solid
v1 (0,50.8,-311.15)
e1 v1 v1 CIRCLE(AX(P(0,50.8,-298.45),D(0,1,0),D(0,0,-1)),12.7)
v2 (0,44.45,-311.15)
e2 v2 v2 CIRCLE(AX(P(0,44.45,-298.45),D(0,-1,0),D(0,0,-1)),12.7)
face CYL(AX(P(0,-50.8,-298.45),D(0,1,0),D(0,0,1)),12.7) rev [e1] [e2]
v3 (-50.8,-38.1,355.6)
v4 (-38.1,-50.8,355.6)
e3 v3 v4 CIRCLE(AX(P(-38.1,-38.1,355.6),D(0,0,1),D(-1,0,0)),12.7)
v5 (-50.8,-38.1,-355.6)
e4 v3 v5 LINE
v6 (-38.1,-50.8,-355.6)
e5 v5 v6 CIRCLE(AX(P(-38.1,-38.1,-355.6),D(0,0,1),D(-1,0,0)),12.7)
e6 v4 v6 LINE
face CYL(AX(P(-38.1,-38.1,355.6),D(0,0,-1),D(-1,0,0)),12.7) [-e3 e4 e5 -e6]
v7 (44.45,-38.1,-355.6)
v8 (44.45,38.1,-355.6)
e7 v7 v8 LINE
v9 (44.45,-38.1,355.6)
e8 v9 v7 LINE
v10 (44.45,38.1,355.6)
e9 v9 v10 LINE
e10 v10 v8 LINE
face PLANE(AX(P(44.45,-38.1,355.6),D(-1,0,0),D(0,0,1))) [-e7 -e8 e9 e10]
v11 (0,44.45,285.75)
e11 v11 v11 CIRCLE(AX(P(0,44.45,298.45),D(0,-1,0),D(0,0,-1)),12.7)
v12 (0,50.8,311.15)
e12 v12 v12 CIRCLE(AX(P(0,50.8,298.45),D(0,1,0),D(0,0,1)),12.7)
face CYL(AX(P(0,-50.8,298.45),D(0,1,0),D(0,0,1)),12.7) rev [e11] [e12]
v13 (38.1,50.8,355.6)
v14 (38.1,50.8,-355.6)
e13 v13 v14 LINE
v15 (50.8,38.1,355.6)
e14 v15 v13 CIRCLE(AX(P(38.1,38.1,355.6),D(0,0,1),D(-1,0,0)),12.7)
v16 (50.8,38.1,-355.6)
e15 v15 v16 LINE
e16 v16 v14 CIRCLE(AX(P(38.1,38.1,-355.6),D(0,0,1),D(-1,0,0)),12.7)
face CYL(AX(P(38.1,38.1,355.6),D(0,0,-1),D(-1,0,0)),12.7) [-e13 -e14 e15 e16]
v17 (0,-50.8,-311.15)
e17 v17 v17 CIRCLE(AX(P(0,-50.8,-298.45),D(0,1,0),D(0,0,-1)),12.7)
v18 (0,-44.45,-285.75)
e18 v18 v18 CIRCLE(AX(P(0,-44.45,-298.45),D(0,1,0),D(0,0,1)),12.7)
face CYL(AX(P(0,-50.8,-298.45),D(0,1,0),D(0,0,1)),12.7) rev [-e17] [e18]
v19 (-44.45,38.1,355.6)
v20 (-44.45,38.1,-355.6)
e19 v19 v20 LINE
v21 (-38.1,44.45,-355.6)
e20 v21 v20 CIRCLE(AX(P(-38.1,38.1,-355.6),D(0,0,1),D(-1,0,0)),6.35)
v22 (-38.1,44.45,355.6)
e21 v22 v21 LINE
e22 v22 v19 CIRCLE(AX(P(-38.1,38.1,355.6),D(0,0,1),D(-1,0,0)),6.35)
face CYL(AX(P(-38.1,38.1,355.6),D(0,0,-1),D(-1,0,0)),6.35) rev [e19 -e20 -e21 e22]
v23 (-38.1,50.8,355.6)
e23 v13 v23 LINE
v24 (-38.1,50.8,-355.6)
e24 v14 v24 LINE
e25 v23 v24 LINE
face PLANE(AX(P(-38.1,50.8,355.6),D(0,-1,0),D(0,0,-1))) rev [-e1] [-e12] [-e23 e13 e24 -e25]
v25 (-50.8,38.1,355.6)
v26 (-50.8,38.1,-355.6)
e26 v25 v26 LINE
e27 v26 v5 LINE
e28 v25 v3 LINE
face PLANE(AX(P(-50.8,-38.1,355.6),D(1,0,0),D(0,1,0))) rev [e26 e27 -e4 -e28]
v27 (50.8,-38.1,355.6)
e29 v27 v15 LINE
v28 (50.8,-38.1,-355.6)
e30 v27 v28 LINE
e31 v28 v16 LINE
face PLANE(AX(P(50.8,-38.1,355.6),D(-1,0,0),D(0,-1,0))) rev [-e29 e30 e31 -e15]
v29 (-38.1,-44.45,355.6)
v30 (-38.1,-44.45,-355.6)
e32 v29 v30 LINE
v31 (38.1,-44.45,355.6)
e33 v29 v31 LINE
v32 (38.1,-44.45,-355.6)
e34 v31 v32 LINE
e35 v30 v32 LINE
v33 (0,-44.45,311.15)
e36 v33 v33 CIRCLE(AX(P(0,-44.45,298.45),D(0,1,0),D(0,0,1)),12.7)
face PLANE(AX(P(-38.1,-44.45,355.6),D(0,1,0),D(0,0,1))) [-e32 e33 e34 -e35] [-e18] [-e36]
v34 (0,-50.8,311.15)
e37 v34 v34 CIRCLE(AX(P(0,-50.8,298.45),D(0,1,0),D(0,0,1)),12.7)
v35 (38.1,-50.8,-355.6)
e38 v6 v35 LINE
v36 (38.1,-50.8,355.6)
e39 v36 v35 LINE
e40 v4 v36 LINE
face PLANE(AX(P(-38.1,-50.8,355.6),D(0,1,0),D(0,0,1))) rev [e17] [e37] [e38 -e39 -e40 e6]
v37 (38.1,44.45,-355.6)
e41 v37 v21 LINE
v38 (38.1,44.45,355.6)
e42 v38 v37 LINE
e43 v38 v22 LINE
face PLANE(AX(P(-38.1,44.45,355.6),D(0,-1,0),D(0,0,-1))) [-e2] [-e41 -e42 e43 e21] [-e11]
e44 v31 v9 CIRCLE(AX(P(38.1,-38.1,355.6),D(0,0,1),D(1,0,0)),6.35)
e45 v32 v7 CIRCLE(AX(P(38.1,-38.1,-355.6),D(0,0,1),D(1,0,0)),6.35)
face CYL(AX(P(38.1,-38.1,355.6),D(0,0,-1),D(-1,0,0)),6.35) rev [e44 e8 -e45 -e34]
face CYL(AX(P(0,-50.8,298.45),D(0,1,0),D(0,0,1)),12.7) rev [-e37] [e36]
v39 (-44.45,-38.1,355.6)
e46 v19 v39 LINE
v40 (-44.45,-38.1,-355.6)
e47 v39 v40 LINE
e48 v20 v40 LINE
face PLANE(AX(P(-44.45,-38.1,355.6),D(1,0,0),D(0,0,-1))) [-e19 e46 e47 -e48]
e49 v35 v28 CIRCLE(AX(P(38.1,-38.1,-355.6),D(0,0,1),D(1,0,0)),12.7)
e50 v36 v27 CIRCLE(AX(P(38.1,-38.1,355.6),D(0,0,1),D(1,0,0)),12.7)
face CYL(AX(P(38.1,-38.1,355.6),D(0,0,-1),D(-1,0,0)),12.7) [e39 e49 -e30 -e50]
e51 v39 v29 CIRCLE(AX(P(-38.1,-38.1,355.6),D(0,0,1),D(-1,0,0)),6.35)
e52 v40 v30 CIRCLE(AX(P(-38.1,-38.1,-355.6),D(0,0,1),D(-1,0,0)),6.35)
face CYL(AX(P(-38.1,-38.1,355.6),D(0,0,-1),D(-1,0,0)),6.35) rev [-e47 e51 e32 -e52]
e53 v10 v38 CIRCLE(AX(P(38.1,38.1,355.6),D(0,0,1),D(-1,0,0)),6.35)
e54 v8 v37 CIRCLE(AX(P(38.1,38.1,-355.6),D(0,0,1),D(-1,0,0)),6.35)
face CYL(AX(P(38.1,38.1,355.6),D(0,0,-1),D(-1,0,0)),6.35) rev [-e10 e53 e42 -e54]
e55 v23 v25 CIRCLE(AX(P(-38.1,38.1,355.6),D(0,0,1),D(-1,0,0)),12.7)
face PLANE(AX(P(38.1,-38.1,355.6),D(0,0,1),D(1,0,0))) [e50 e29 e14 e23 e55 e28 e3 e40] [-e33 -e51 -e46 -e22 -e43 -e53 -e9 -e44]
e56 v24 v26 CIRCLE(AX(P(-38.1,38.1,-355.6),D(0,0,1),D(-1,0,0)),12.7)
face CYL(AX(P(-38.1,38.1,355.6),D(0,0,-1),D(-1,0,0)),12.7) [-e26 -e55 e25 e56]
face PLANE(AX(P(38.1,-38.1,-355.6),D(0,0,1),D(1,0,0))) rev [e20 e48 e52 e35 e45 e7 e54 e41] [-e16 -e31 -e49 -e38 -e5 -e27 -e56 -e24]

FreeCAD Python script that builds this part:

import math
import FreeCAD as App
import Part
import Sketcher
from FreeCAD import Vector
Q = App.Units.Quantity

doc = App.newDocument("Part")
body = doc.addObject("PartDesign::Body", "Body")

sketch1 = body.newObject("Sketcher::SketchObject", "Sketch")
sketch1.AttachmentSupport = (doc.getObject("XY_Plane"), [""])
sketch1.MapMode = "FlatFace"
sketch1.addGeometry([
    Part.LineSegment(Vector(-38.1, -50.8, 0), Vector(38.1, -50.8, 0)),
    Part.ArcOfCircle(Part.Circle(Vector(38.1, -38.1, 0), Vector(0, 0, 1), 12.7), math.radians(-90), math.radians(0)),
    Part.LineSegment(Vector(50.8, -38.1, 0), Vector(50.8, 38.1, 0)),
    Part.ArcOfCircle(Part.Circle(Vector(38.1, 38.1, 0), Vector(0, 0, 1), 12.7), math.radians(0), math.radians(90)),
    Part.LineSegment(Vector(38.1, 50.8, 0), Vector(-38.1, 50.8, 0)),
    Part.ArcOfCircle(Part.Circle(Vector(-38.1, 38.1, 0), Vector(0, 0, 1), 12.7), math.radians(90), math.radians(180)),
    Part.LineSegment(Vector(-50.8, 38.1, 0), Vector(-50.8, -38.1, 0)),
    Part.ArcOfCircle(Part.Circle(Vector(-38.1, -38.1, 0), Vector(0, 0, 1), 12.7), math.radians(180), math.radians(270)),
    Part.ArcOfCircle(Part.Circle(Vector(-38.1, 38.1, 0), Vector(0, 0, 1), 6.35), math.radians(90), math.radians(180)),
    Part.LineSegment(Vector(-38.1, 44.45, 0), Vector(38.1, 44.45, 0)),
    Part.ArcOfCircle(Part.Circle(Vector(38.1, 38.1, 0), Vector(0, 0, 1), 6.35), math.radians(0), math.radians(90)),
    Part.LineSegment(Vector(44.45, 38.1, 0), Vector(44.45, -38.1, 0)),
    Part.ArcOfCircle(Part.Circle(Vector(38.1, -38.1, 0), Vector(0, 0, 1), 6.35), math.radians(-90), math.radians(0)),
    Part.LineSegment(Vector(38.1, -44.45, 0), Vector(-38.1, -44.45, 0)),
    Part.ArcOfCircle(Part.Circle(Vector(-38.1, -38.1, 0), Vector(0, 0, 1), 6.35), math.radians(180), math.radians(270)),
    Part.LineSegment(Vector(-44.45, -38.1, 0), Vector(-44.45, 38.1, 0)),
], False)
sketch1.addConstraint([
    Sketcher.Constraint("Tangent", 0, 2, 1, 1),
    Sketcher.Constraint("Tangent", 1, 2, 2, 1),
    Sketcher.Constraint("Tangent", 2, 2, 3, 1),
    Sketcher.Constraint("Tangent", 3, 2, 4, 1),
    Sketcher.Constraint("Tangent", 4, 2, 5, 1),
    Sketcher.Constraint("Tangent", 5, 2, 6, 1),
    Sketcher.Constraint("Tangent", 6, 2, 7, 1),
    Sketcher.Constraint("Tangent", 7, 2, 0, 1),
    Sketcher.Constraint("Tangent", 8, 1, 9, 1),
    Sketcher.Constraint("Tangent", 9, 2, 10, 2),
    Sketcher.Constraint("Tangent", 10, 1, 11, 1),
    Sketcher.Constraint("Tangent", 11, 2, 12, 2),
    Sketcher.Constraint("Tangent", 12, 1, 13, 1),
    Sketcher.Constraint("Tangent", 13, 2, 14, 2),
    Sketcher.Constraint("Tangent", 14, 1, 15, 1),
    Sketcher.Constraint("Tangent", 15, 2, 8, 2),
    Sketcher.Constraint("Horizontal", 0),
    Sketcher.Constraint("Vertical", 2),
    Sketcher.Constraint("Horizontal", 4),
    Sketcher.Constraint("Vertical", 6),
    Sketcher.Constraint("Horizontal", 9),
    Sketcher.Constraint("Vertical", 11),
    Sketcher.Constraint("Horizontal", 13),
    Sketcher.Constraint("Vertical", 15),
    Sketcher.Constraint("Coincident", 8, 3, 5, 3),
    Sketcher.Constraint("Coincident", 10, 3, 3, 3),
    Sketcher.Constraint("Coincident", 12, 3, 1, 3),
    Sketcher.Constraint("Equal", 1, 3),
    Sketcher.Constraint("Equal", 3, 5),
    Sketcher.Constraint("Equal", 5, 7),
    Sketcher.Constraint("Equal", 12, 14),
    Sketcher.Constraint("Symmetric", 1, 3, 5, 3, -1, 1),
    Sketcher.Constraint("Equal", 13, 2),
    Sketcher.Constraint("Radius", 1, Q("0.5 in")),
    Sketcher.Constraint("DistanceX", 0, 1, 0, 2, Q("3 in")),
    Sketcher.Constraint("Radius", 8, Q("0.25 in")),
])
pad1 = body.newObject("PartDesign::Pad", "Pad")
pad1.Profile = sketch1
pad1.Length = Q("28 in")
pad1.Midplane = True

sketch2 = body.newObject("Sketcher::SketchObject", "Sketch001")
sketch2.AttachmentSupport = (doc.getObject("XZ_Plane"), [""])
sketch2.MapMode = "FlatFace"
sketch2.AttachmentOffset = App.Placement(Vector(0, 0, -2 * 25.4), App.Rotation())
sketch2.addGeometry([
    Part.Circle(Vector(0, 298.45, 0), Vector(0, 0, 1), 12.7),
    Part.Circle(Vector(0, -298.45, 0), Vector(0, 0, 1), 12.7),
], False)
sketch2.addConstraint([
    Sketcher.Constraint("Equal", 0, 1),
    Sketcher.Constraint("Symmetric", 0, 3, 1, 3, -1, 1),
    Sketcher.Constraint("PointOnObject", 0, 3, -2),
    Sketcher.Constraint("Diameter", 0, Q("1 in")),
    Sketcher.Constraint("DistanceY", 1, 3, 0, 3, Q("23.5 in")),
])
pocket1 = body.newObject("PartDesign::Pocket", "Pocket")
pocket1.Profile = sketch2
pocket1.Type = "ThroughAll"
pocket1.Reversed = True

doc.recompute()
